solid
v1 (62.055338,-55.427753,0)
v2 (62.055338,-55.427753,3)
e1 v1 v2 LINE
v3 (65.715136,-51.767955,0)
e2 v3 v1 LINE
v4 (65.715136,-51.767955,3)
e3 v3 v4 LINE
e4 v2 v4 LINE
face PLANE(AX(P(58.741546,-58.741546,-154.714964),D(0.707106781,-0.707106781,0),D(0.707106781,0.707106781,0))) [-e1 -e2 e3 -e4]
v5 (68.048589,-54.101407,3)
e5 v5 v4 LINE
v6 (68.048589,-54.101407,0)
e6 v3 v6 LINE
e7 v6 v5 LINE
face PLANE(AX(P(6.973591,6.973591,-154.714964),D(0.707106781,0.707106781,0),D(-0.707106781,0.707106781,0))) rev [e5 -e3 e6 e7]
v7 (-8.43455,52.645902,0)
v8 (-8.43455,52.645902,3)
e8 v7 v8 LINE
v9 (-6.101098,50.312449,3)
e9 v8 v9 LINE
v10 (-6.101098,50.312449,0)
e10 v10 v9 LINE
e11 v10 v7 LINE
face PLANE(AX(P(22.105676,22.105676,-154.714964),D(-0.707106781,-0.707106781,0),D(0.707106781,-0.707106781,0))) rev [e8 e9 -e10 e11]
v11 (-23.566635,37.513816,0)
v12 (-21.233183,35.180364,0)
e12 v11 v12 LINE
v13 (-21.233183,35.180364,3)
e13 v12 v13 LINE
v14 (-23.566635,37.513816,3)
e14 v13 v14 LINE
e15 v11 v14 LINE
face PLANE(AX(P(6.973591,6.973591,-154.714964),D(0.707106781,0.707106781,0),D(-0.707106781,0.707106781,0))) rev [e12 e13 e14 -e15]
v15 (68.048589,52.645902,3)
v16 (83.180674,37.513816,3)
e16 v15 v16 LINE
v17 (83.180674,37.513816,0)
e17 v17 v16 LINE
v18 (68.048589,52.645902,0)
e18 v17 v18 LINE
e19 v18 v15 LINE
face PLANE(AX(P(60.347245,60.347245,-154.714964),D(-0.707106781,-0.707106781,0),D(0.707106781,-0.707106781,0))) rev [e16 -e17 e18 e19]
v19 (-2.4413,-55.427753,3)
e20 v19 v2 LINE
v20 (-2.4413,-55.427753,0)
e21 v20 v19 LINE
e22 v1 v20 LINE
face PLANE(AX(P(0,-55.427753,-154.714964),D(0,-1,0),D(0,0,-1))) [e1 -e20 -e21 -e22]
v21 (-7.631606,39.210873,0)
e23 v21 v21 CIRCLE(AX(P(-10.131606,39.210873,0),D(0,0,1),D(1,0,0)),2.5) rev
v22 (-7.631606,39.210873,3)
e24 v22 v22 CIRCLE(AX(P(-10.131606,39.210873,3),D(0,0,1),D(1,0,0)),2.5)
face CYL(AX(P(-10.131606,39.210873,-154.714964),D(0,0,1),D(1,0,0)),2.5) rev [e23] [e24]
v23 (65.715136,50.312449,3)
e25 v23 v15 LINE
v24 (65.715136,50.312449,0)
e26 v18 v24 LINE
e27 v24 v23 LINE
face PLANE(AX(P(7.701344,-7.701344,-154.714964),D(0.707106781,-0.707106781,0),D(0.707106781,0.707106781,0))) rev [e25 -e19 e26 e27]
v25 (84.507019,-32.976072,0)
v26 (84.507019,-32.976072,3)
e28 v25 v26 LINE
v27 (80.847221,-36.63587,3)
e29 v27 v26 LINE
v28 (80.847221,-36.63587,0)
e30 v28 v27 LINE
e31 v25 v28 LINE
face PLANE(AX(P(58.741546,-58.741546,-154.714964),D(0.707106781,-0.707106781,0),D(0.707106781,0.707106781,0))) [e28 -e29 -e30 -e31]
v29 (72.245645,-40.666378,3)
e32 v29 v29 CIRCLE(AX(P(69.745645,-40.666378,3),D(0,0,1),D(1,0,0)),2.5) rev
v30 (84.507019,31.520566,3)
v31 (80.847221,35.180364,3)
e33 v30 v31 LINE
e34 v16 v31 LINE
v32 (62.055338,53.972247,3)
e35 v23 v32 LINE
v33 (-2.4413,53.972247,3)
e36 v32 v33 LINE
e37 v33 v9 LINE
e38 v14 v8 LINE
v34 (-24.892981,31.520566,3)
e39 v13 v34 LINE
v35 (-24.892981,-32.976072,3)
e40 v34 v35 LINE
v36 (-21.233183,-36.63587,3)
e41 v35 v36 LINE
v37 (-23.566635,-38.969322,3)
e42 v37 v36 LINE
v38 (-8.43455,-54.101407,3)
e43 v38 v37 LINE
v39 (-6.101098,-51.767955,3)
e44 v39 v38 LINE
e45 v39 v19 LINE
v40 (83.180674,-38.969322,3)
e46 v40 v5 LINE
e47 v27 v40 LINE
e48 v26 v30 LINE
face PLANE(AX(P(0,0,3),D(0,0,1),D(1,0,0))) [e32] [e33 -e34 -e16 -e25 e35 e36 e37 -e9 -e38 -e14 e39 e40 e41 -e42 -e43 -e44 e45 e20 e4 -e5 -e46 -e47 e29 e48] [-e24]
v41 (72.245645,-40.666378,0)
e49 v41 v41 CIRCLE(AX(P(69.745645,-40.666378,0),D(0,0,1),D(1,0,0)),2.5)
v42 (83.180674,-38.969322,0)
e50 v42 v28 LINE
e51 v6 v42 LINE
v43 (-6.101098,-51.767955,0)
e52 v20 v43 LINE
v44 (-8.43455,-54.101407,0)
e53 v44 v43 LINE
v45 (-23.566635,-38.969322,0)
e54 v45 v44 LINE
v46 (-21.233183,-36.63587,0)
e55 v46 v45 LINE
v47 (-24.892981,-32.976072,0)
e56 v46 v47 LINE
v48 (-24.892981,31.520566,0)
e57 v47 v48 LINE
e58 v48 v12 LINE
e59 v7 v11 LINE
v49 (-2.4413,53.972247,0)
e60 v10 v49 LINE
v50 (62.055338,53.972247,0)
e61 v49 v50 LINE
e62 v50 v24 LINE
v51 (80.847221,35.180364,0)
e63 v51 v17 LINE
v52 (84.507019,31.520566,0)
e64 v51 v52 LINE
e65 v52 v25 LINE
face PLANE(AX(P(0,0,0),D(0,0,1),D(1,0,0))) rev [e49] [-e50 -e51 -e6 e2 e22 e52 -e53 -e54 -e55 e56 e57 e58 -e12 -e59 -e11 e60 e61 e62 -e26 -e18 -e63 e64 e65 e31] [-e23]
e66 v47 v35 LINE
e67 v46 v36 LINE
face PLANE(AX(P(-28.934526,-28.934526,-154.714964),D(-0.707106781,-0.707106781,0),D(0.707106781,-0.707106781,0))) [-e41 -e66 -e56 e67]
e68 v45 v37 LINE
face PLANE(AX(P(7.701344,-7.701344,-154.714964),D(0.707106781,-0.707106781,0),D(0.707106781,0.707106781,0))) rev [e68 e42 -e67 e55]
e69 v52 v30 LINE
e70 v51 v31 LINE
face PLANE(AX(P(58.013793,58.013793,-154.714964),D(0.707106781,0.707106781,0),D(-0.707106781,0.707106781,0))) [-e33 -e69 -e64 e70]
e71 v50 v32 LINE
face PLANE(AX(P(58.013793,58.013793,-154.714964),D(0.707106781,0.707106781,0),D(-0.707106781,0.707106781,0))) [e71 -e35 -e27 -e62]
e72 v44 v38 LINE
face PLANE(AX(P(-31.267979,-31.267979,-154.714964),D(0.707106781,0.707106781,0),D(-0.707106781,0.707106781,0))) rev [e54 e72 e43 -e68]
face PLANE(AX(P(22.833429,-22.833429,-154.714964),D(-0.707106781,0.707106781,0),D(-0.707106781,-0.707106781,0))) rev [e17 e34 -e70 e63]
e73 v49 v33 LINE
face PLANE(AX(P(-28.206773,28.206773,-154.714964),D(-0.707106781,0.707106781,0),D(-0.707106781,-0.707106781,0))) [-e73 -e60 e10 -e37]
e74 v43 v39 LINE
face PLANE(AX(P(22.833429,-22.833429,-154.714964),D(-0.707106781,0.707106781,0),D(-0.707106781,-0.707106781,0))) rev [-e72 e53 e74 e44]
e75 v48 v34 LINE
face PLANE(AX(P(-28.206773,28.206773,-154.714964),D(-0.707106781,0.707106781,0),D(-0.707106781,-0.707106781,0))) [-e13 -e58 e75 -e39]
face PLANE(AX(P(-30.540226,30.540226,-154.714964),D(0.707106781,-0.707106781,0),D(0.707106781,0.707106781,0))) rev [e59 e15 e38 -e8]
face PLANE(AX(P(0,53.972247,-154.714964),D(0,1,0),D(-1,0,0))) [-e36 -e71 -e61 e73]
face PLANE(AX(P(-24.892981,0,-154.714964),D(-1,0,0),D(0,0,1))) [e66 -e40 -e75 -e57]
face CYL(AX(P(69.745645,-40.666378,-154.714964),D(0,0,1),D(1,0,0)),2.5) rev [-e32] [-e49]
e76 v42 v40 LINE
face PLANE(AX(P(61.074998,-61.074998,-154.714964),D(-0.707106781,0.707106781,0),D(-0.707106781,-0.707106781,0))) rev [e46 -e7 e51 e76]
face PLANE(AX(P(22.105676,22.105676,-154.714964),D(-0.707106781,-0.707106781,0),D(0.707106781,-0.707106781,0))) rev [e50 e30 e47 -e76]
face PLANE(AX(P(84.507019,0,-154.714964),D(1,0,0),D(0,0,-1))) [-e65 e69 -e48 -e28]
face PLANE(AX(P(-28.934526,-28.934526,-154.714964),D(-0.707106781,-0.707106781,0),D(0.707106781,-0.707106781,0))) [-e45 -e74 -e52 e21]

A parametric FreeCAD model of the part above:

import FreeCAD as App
import Part
import Sketcher

doc = App.newDocument("Part")
params = doc.addObject("Spreadsheet::Sheet", "Params")
for row, (alias, value) in enumerate([
    ("sketch1_diameter", "5 mm"),
    ("sketch1_length", "21.4 mm"),
    ("sketch1_length2", "3.3 mm"),
    ("pad1_length", "3 mm"),
], start=1):
    params.set(f"A{row}", alias)
    params.set(f"B{row}", "=" + value)
    params.setAlias(f"B{row}", alias)

body = doc.addObject("PartDesign::Body", "Body")

sketch1 = body.newObject("Sketcher::SketchObject", "Sketch")
sketch1.AttachmentSupport = (doc.getObject("XY_Plane"), [""])
sketch1.MapMode = "FlatFace"
sketch1.AttachmentOffset = App.Placement(App.Vector(0, 0, 3), App.Rotation())
sketch1.addGeometry(Part.LineSegment(App.Vector(83.2, 37.5, 0), App.Vector(68, 52.6, 0)), False)
sketch1.addGeometry(Part.LineSegment(App.Vector(68, 52.6, 0), App.Vector(65.7, 50.3, 0)), False)
sketch1.addGeometry(Part.LineSegment(App.Vector(65.7, 50.3, 0), App.Vector(62.1, 54, 0)), False)
sketch1.addGeometry(Part.LineSegment(App.Vector(62.1, 54, 0), App.Vector(-2.4, 54, 0)), False)
sketch1.addGeometry(Part.LineSegment(App.Vector(-2.4, 54, 0), App.Vector(-6.1, 50.3, 0)), False)
sketch1.addGeometry(Part.LineSegment(App.Vector(-6.1, 50.3, 0), App.Vector(-8.4, 52.6, 0)), False)
sketch1.addGeometry(Part.LineSegment(App.Vector(-8.4, 52.6, 0), App.Vector(-23.6, 37.5, 0)), False)
sketch1.addGeometry(Part.LineSegment(App.Vector(-23.6, 37.5, 0), App.Vector(-21.2, 35.2, 0)), False)
sketch1.addGeometry(Part.LineSegment(App.Vector(-21.2, 35.2, 0), App.Vector(-24.9, 31.5, 0)), False)
sketch1.addGeometry(Part.LineSegment(App.Vector(-24.9, 31.5, 0), App.Vector(-24.9, -33, 0)), False)
sketch1.addGeometry(Part.LineSegment(App.Vector(-24.9, -33, 0), App.Vector(-21.2, -36.6, 0)), False)
sketch1.addGeometry(Part.LineSegment(App.Vector(-21.2, -36.6, 0), App.Vector(-23.6, -39, 0)), False)
sketch1.addGeometry(Part.LineSegment(App.Vector(-23.6, -39, 0), App.Vector(-8.4, -54.1, 0)), False)
sketch1.addGeometry(Part.LineSegment(App.Vector(-8.4, -54.1, 0), App.Vector(-6.1, -51.8, 0)), False)
sketch1.addGeometry(Part.LineSegment(App.Vector(-6.1, -51.8, 0), App.Vector(-2.4, -55.4, 0)), False)
sketch1.addGeometry(Part.LineSegment(App.Vector(-2.4, -55.4, 0), App.Vector(62.1, -55.4, 0)), False)
sketch1.addGeometry(Part.LineSegment(App.Vector(62.1, -55.4, 0), App.Vector(65.7, -51.8, 0)), False)
sketch1.addGeometry(Part.LineSegment(App.Vector(65.7, -51.8, 0), App.Vector(68, -54.1, 0)), False)
sketch1.addGeometry(Part.LineSegment(App.Vector(68, -54.1, 0), App.Vector(83.2, -39, 0)), False)
sketch1.addGeometry(Part.LineSegment(App.Vector(83.2, -39, 0), App.Vector(80.8, -36.6, 0)), False)
sketch1.addGeometry(Part.LineSegment(App.Vector(80.8, -36.6, 0), App.Vector(84.5, -33, 0)), False)
sketch1.addGeometry(Part.LineSegment(App.Vector(84.5, -33, 0), App.Vector(84.5, 31.5, 0)), False)
sketch1.addGeometry(Part.LineSegment(App.Vector(84.5, 31.5, 0), App.Vector(80.8, 35.2, 0)), False)
sketch1.addGeometry(Part.LineSegment(App.Vector(80.8, 35.2, 0), App.Vector(83.2, 37.5, 0)), False)
sketch1.addGeometry(Part.Circle(App.Vector(69.7, -40.7, 0), App.Vector(0, 0, 1), 2.5), False)
sketch1.addGeometry(Part.Circle(App.Vector(-10.1, 39.2, 0), App.Vector(0, 0, 1), 2.5), False)
sketch1.addConstraint(Sketcher.Constraint("Coincident", 0, 2, 1, 1))
sketch1.addConstraint(Sketcher.Constraint("Coincident", 1, 2, 2, 1))
sketch1.addConstraint(Sketcher.Constraint("Coincident", 2, 2, 3, 1))
sketch1.addConstraint(Sketcher.Constraint("Coincident", 3, 2, 4, 1))
sketch1.addConstraint(Sketcher.Constraint("Coincident", 4, 2, 5, 1))
sketch1.addConstraint(Sketcher.Constraint("Coincident", 5, 2, 6, 1))
sketch1.addConstraint(Sketcher.Constraint("Coincident", 6, 2, 7, 1))
sketch1.addConstraint(Sketcher.Constraint("Coincident", 7, 2, 8, 1))
sketch1.addConstraint(Sketcher.Constraint("Coincident", 8, 2, 9, 1))
sketch1.addConstraint(Sketcher.Constraint("Coincident", 9, 2, 10, 1))
sketch1.addConstraint(Sketcher.Constraint("Coincident", 10, 2, 11, 1))
sketch1.addConstraint(Sketcher.Constraint("Coincident", 11, 2, 12, 1))
sketch1.addConstraint(Sketcher.Constraint("Coincident", 12, 2, 13, 1))
sketch1.addConstraint(Sketcher.Constraint("Coincident", 13, 2, 14, 1))
sketch1.addConstraint(Sketcher.Constraint("Coincident", 14, 2, 15, 1))
sketch1.addConstraint(Sketcher.Constraint("Coincident", 15, 2, 16, 1))
sketch1.addConstraint(Sketcher.Constraint("Coincident", 16, 2, 17, 1))
sketch1.addConstraint(Sketcher.Constraint("Coincident", 17, 2, 18, 1))
sketch1.addConstraint(Sketcher.Constraint("Coincident", 18, 2, 19, 1))
sketch1.addConstraint(Sketcher.Constraint("Coincident", 19, 2, 20, 1))
sketch1.addConstraint(Sketcher.Constraint("Coincident", 20, 2, 21, 1))
sketch1.addConstraint(Sketcher.Constraint("Coincident", 21, 2, 22, 1))
sketch1.addConstraint(Sketcher.Constraint("Coincident", 22, 2, 23, 1))
sketch1.addConstraint(Sketcher.Constraint("Coincident", 23, 2, 0, 1))
sketch1.addConstraint(Sketcher.Constraint("Horizontal", 3))
sketch1.addConstraint(Sketcher.Constraint("Vertical", 9))
sketch1.addConstraint(Sketcher.Constraint("Horizontal", 15))
sketch1.addConstraint(Sketcher.Constraint("Vertical", 21))
sketch1.addConstraint(Sketcher.Constraint("Equal", 24, 25))
sketch1.addConstraint(Sketcher.Constraint("Perpendicular", 0, 1))
sketch1.addConstraint(Sketcher.Constraint("Perpendicular", 1, 2))
sketch1.addConstraint(Sketcher.Constraint("Perpendicular", 2, 4))
sketch1.addConstraint(Sketcher.Constraint("Perpendicular", 4, 5))
sketch1.addConstraint(Sketcher.Constraint("Perpendicular", 5, 6))
sketch1.addConstraint(Sketcher.Constraint("Perpendicular", 6, 7))
sketch1.addConstraint(Sketcher.Constraint("Perpendicular", 7, 8))
sketch1.addConstraint(Sketcher.Constraint("Perpendicular", 8, 10))
sketch1.addConstraint(Sketcher.Constraint("Perpendicular", 10, 11))
sketch1.addConstraint(Sketcher.Constraint("Perpendicular", 11, 12))
sketch1.addConstraint(Sketcher.Constraint("Perpendicular", 12, 13))
sketch1.addConstraint(Sketcher.Constraint("Perpendicular", 13, 14))
sketch1.addConstraint(Sketcher.Constraint("Perpendicular", 14, 16))
sketch1.addConstraint(Sketcher.Constraint("Perpendicular", 16, 17))
sketch1.addConstraint(Sketcher.Constraint("Perpendicular", 17, 18))
sketch1.addConstraint(Sketcher.Constraint("Perpendicular", 18, 19))
sketch1.addConstraint(Sketcher.Constraint("Perpendicular", 19, 20))
sketch1.addConstraint(Sketcher.Constraint("Perpendicular", 20, 22))
sketch1.addConstraint(Sketcher.Constraint("Perpendicular", 22, 23))
sketch1.addConstraint(Sketcher.Constraint("Horizontal", 1, 2, 4, 2))
sketch1.addConstraint(Sketcher.Constraint("Horizontal", 0, 2, 5, 2))
sketch1.addConstraint(Sketcher.Constraint("Horizontal", 13, 2, 16, 2))
sketch1.addConstraint(Sketcher.Constraint("Horizontal", 12, 2, 17, 2))
sketch1.addConstraint(Sketcher.Constraint("Horizontal", 11, 2, 18, 2))
sketch1.addConstraint(Sketcher.Constraint("Horizontal", 10, 2, 19, 2))
sketch1.addConstraint(Sketcher.Constraint("Horizontal", 9, 2, 20, 2))
sketch1.addConstraint(Sketcher.Constraint("Horizontal", 8, 2, 21, 2))
sketch1.addConstraint(Sketcher.Constraint("Horizontal", 7, 2, 22, 2))
sketch1.addConstraint(Sketcher.Constraint("Horizontal", 6, 2, 23, 2))
sketch1.addConstraint(Sketcher.Constraint("Vertical", 7, 2, 10, 2))
sketch1.addConstraint(Sketcher.Constraint("Vertical", 6, 2, 11, 2))
sketch1.addConstraint(Sketcher.Constraint("Vertical", 5, 2, 12, 2))
sketch1.addConstraint(Sketcher.Constraint("Vertical", 4, 2, 13, 2))
sketch1.addConstraint(Sketcher.Constraint("Vertical", 3, 2, 14, 2))
sketch1.addConstraint(Sketcher.Constraint("Vertical", 2, 2, 15, 2))
sketch1.addConstraint(Sketcher.Constraint("Equal", 15, 9))
sketch1.addConstraint(Sketcher.Constraint("Equal", 5, 7))
sketch1.addConstraint(Sketcher.Constraint("Equal", 4, 8))
sketch1.addConstraint(Sketcher.Constraint("Diameter", 24, 5.0))
sketch1.addConstraint(Sketcher.Constraint("Distance", 0, 21.4))
sketch1.addConstraint(Sketcher.Constraint("Distance", 1, 3.3))
sketch1.addConstraint(Sketcher.Constraint("DistanceY", -1, 1, 0, 2, 52.645902))
sketch1.addConstraint(Sketcher.Constraint("DistanceX", 3, 2, -1, 1, 2.4413))
sketch1.addConstraint(Sketcher.Constraint("DistanceX", 3, 2, 3, 1, 64.496638))
sketch1.addConstraint(Sketcher.Constraint("DistanceY", 24, 3, -1, 1, 40.666378))
sketch1.addConstraint(Sketcher.Constraint("DistanceX", -1, 1, 0, 2, 68.048589))
sketch1.addConstraint(Sketcher.Constraint("DistanceX", 25, 3, 24, 3, 79.877251))
sketch1.addConstraint(Sketcher.Constraint("DistanceY", 24, 3, 25, 3, 79.877251))
sketch1.addConstraint(Sketcher.Constraint("DistanceX", 1, 2, 24, 3, 4.030509))
sketch1.setExpression("Constraints[67]", "Params.sketch1_diameter")
sketch1.setExpression("Constraints[68]", "Params.sketch1_length")
sketch1.setExpression("Constraints[69]", "Params.sketch1_length2")
pad1 = body.newObject("PartDesign::Pad", "Pad")
pad1.Profile = sketch1
pad1.setExpression("Length", "Params.pad1_length")
pad1.Reversed = True

doc.recompute()
